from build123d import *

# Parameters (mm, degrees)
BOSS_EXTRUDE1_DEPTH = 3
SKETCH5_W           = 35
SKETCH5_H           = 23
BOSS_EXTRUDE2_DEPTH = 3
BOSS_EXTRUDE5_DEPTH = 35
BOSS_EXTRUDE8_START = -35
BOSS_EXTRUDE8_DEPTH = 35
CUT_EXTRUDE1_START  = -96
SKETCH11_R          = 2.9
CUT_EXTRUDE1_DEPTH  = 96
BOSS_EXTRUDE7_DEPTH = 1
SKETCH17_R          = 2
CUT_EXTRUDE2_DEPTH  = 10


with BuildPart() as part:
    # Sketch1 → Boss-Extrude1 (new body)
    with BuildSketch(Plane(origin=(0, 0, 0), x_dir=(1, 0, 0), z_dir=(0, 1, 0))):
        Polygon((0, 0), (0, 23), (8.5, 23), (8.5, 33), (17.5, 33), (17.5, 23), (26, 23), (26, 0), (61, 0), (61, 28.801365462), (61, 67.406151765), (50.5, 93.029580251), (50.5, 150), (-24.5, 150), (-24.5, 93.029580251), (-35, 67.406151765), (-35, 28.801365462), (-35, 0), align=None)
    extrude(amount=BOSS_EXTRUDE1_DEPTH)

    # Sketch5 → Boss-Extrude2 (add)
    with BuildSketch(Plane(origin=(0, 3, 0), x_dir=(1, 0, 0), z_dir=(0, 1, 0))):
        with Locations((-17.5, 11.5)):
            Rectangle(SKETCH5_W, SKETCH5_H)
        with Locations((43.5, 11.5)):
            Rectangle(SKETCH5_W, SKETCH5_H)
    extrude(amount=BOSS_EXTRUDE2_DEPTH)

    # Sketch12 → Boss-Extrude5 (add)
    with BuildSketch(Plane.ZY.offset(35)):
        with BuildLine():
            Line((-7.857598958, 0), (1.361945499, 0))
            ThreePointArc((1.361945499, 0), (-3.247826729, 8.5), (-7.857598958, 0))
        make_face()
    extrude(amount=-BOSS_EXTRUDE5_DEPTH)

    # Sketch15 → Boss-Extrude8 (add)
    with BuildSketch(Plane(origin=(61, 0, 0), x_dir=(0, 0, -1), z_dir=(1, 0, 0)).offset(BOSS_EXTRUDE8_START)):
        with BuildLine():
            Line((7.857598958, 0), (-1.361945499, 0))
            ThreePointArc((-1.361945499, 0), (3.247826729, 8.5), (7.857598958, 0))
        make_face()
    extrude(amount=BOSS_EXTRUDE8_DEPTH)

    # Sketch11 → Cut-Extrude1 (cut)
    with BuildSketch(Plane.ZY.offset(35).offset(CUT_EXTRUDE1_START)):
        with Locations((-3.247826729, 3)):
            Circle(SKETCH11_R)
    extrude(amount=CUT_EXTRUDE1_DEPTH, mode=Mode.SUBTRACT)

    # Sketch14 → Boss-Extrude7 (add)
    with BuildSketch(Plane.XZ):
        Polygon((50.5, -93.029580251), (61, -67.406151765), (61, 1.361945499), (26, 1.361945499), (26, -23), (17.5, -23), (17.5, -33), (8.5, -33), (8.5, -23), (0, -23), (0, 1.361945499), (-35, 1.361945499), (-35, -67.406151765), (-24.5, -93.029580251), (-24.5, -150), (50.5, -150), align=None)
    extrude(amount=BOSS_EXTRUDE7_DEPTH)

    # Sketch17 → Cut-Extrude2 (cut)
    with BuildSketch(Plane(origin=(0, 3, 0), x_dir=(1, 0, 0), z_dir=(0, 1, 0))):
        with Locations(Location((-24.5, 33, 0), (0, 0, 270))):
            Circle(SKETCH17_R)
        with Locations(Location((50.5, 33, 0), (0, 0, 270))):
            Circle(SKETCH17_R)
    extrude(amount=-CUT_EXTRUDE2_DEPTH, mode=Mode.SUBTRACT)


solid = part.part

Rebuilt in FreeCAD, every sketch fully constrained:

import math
import FreeCAD as App
import Part
import Sketcher

doc = App.newDocument("Part")
body = doc.addObject("PartDesign::Body", "Body")

sketch1 = body.newObject("Sketcher::SketchObject", "Sketch")
sketch1.AttachmentSupport = (doc.getObject("XZ_Plane"), [""])
sketch1.MapMode = "FlatFace"
sketch1.addGeometry([
    Part.LineSegment(App.Vector(0, 0, 0), App.Vector(0, -23, 0)),
    Part.LineSegment(App.Vector(0, -23, 0), App.Vector(8, -23, 0)),
    Part.LineSegment(App.Vector(8, -23, 0), App.Vector(8, -33, 0)),
    Part.LineSegment(App.Vector(8, -33, 0), App.Vector(18, -33, 0)),
    Part.LineSegment(App.Vector(18, -33, 0), App.Vector(18, -23, 0)),
    Part.LineSegment(App.Vector(18, -23, 0), App.Vector(26, -23, 0)),
    Part.LineSegment(App.Vector(26, -23, 0), App.Vector(26, 0, 0)),
    Part.LineSegment(App.Vector(26, 0, 0), App.Vector(61, 0, 0)),
    Part.LineSegment(App.Vector(61, 0, 0), App.Vector(61, -67, 0)),
    Part.LineSegment(App.Vector(61, -67, 0), App.Vector(50, -93, 0)),
    Part.LineSegment(App.Vector(50, -93, 0), App.Vector(50, -150, 0)),
    Part.LineSegment(App.Vector(50, -150, 0), App.Vector(-24, -150, 0)),
    Part.LineSegment(App.Vector(-24, -150, 0), App.Vector(-24, -93, 0)),
    Part.LineSegment(App.Vector(-24, -93, 0), App.Vector(-35, -67, 0)),
    Part.LineSegment(App.Vector(-35, -67, 0), App.Vector(-35, 0, 0)),
    Part.LineSegment(App.Vector(-35, 0, 0), App.Vector(0, 0, 0)),
], False)
sketch1.addConstraint([
    Sketcher.Constraint("Coincident", 0, 2, 1, 1),
    Sketcher.Constraint("Coincident", 1, 2, 2, 1),
    Sketcher.Constraint("Coincident", 2, 2, 3, 1),
    Sketcher.Constraint("Coincident", 3, 2, 4, 1),
    Sketcher.Constraint("Coincident", 4, 2, 5, 1),
    Sketcher.Constraint("Coincident", 5, 2, 6, 1),
    Sketcher.Constraint("Coincident", 6, 2, 7, 1),
    Sketcher.Constraint("Coincident", 7, 2, 8, 1),
    Sketcher.Constraint("Coincident", 8, 2, 9, 1),
    Sketcher.Constraint("Coincident", 9, 2, 10, 1),
    Sketcher.Constraint("Coincident", 10, 2, 11, 1),
    Sketcher.Constraint("Coincident", 11, 2, 12, 1),
    Sketcher.Constraint("Coincident", 12, 2, 13, 1),
    Sketcher.Constraint("Coincident", 13, 2, 14, 1),
    Sketcher.Constraint("Coincident", 14, 2, 15, 1),
    Sketcher.Constraint("Coincident", 15, 2, 0, 1),
    Sketcher.Constraint("Vertical", 0),
    Sketcher.Constraint("Horizontal", 1),
    Sketcher.Constraint("Vertical", 2),
    Sketcher.Constraint("Horizontal", 3),
    Sketcher.Constraint("Vertical", 4),
    Sketcher.Constraint("Horizontal", 5),
    Sketcher.Constraint("Vertical", 6),
    Sketcher.Constraint("Horizontal", 7),
    Sketcher.Constraint("Vertical", 8),
    Sketcher.Constraint("Vertical", 10),
    Sketcher.Constraint("Horizontal", 11),
    Sketcher.Constraint("Vertical", 12),
    Sketcher.Constraint("Vertical", 14),
    Sketcher.Constraint("Horizontal", 15),
    Sketcher.Constraint("Coincident", 15, 2, -1, 1),
    Sketcher.Constraint("PointOnObject", 6, 2, -1),
    Sketcher.Constraint("Horizontal", 1, 2, 4, 2),
    Sketcher.Constraint("Horizontal", 9, 2, 12, 2),
    Sketcher.Constraint("Horizontal", 8, 2, 13, 2),
    Sketcher.Constraint("Equal", 1, 5),
    Sketcher.Constraint("Equal", 7, 15),
    Sketcher.Constraint("Equal", 9, 13),
    Sketcher.Constraint("DistanceX", 3, 1, 3, 2, 9.0),
    Sketcher.Constraint("DistanceX", 7, 1, 7, 2, 35.0),
    Sketcher.Constraint("DistanceX", 11, 2, 11, 1, 75.0),
    Sketcher.Constraint("DistanceY", 0, 2, 0, 1, 23.0),
    Sketcher.Constraint("DistanceY", 2, 2, 2, 1, 10.0),
    Sketcher.Constraint("DistanceX", 1, 1, 1, 2, 8.5),
    Sketcher.Constraint("DistanceY", 10, 2, -1, 1, 150.0),
    Sketcher.Constraint("DistanceY", 8, 2, 8, 1, 67.406152),
    Sketcher.Constraint("DistanceY", 10, 2, 10, 1, 56.97042),
])
pad1 = body.newObject("PartDesign::Pad", "Pad")
pad1.Profile = sketch1
pad1.Length = 3
pad1.Reversed = True

sketch2 = body.newObject("Sketcher::SketchObject", "Sketch001")
sketch2.AttachmentSupport = (doc.getObject("XZ_Plane"), [""])
sketch2.MapMode = "FlatFace"
sketch2.AttachmentOffset = App.Placement(App.Vector(0, 0, -3), App.Rotation())
sketch2.addGeometry([
    Part.LineSegment(App.Vector(-35, -23, 0), App.Vector(-35, 0, 0)),
    Part.LineSegment(App.Vector(-35, 0, 0), App.Vector(0, 0, 0)),
    Part.LineSegment(App.Vector(0, 0, 0), App.Vector(0, -23, 0)),
    Part.LineSegment(App.Vector(0, -23, 0), App.Vector(-35, -23, 0)),
    Part.LineSegment(App.Vector(26, -23, 0), App.Vector(26, 0, 0)),
    Part.LineSegment(App.Vector(26, 0, 0), App.Vector(61, 0, 0)),
    Part.LineSegment(App.Vector(61, 0, 0), App.Vector(61, -23, 0)),
    Part.LineSegment(App.Vector(61, -23, 0), App.Vector(26, -23, 0)),
], False)
sketch2.addConstraint([
    Sketcher.Constraint("Coincident", 0, 2, 1, 1),
    Sketcher.Constraint("Coincident", 1, 2, 2, 1),
    Sketcher.Constraint("Coincident", 2, 2, 3, 1),
    Sketcher.Constraint("Coincident", 3, 2, 0, 1),
    Sketcher.Constraint("Coincident", 4, 2, 5, 1),
    Sketcher.Constraint("Coincident", 5, 2, 6, 1),
    Sketcher.Constraint("Coincident", 6, 2, 7, 1),
    Sketcher.Constraint("Coincident", 7, 2, 4, 1),
    Sketcher.Constraint("Vertical", 0),
    Sketcher.Constraint("Horizontal", 1),
    Sketcher.Constraint("Vertical", 2),
    Sketcher.Constraint("Horizontal", 3),
    Sketcher.Constraint("Vertical", 4),
    Sketcher.Constraint("Horizontal", 5),
    Sketcher.Constraint("Vertical", 6),
    Sketcher.Constraint("Horizontal", 7),
    Sketcher.Constraint("Coincident", 1, 2, -1, 1),
    Sketcher.Constraint("PointOnObject", 4, 2, -1),
    Sketcher.Constraint("Horizontal", 3, 2, 6, 2),
    Sketcher.Constraint("Equal", 3, 5),
    Sketcher.Constraint("DistanceX", 1, 1, 1, 2, 35.0),
    Sketcher.Constraint("DistanceY", 0, 1, 0, 2, 23.0),
    Sketcher.Constraint("DistanceX", -1, 1, 4, 2, 26.0),
])
pad2 = body.newObject("PartDesign::Pad", "Pad001")
pad2.Profile = sketch2
pad2.Length = 3
pad2.Reversed = True

sketch3 = body.newObject("Sketcher::SketchObject", "Sketch002")
sketch3.AttachmentSupport = (doc.getObject("YZ_Plane"), [""])
sketch3.MapMode = "FlatFace"
sketch3.AttachmentOffset = App.Placement(App.Vector(0, 0, -35), App.Rotation())
sketch3.addGeometry([
    Part.LineSegment(App.Vector(0, -8, 0), App.Vector(0, 1, 0)),
    Part.ArcOfCircle(Part.Circle(App.Vector(3, -3, 0), App.Vector(0, 0, 1), 6), math.radians(-123), math.radians(123)),
], False)
sketch3.addConstraint([
    Sketcher.Constraint("Coincident", 0, 1, 1, 1),
    Sketcher.Constraint("Coincident", 1, 2, 0, 2),
    Sketcher.Constraint("Vertical", 0),
    Sketcher.Constraint("PointOnObject", 0, 1, -2),
    Sketcher.Constraint("Radius", 1, 5.5),
    Sketcher.Constraint("DistanceX", -1, 1, 1, 3, 3.0),
    Sketcher.Constraint("DistanceY", 0, 1, -1, 1, 7.857599),
])
pad3 = body.newObject("PartDesign::Pad", "Pad002")
pad3.Profile = sketch3
pad3.Length = 35

sketch4 = body.newObject("Sketcher::SketchObject", "Sketch003")
sketch4.AttachmentSupport = (doc.getObject("YZ_Plane"), [""])
sketch4.MapMode = "FlatFace"
sketch4.AttachmentOffset = App.Placement(App.Vector(0, 0, 26), App.Rotation())
sketch4.addGeometry([
    Part.LineSegment(App.Vector(0, 1, 0), App.Vector(0, -8, 0)),
    Part.ArcOfCircle(Part.Circle(App.Vector(3, -3, 0), App.Vector(0, 0, 1), 6), math.radians(-123), math.radians(123)),
], False)
sketch4.addConstraint([
    Sketcher.Constraint("Coincident", 0, 1, 1, 2),
    Sketcher.Constraint("Coincident", 1, 1, 0, 2),
    Sketcher.Constraint("Vertical", 0),
    Sketcher.Constraint("PointOnObject", 0, 1, -2),
    Sketcher.Constraint("Radius", 1, 5.5),
    Sketcher.Constraint("DistanceX", -1, 1, 1, 3, 3.0),
    Sketcher.Constraint("DistanceY", 1, 1, -1, 1, 7.857599),
])
pad4 = body.newObject("PartDesign::Pad", "Pad003")
pad4.Profile = sketch4
pad4.Length = 35

sketch5 = body.newObject("Sketcher::SketchObject", "Sketch004")
sketch5.AttachmentSupport = (doc.getObject("YZ_Plane"), [""])
sketch5.MapMode = "FlatFace"
sketch5.AttachmentOffset = App.Placement(App.Vector(0, 0, 61), App.Rotation())
sketch5.addGeometry(Part.Circle(App.Vector(3, -3.2, 0), App.Vector(0, 0, 1), 2.9), False)
sketch5.addConstraint([
    Sketcher.Constraint("Diameter", 0, 5.8),
    Sketcher.Constraint("DistanceX", -1, 1, 0, 3, 3.0),
    Sketcher.Constraint("DistanceY", 0, 3, -1, 1, 3.247827),
])
pocket1 = body.newObject("PartDesign::Pocket", "Pocket")
pocket1.Profile = sketch5
pocket1.Length = 96

sketch6 = body.newObject("Sketcher::SketchObject", "Sketch005")
sketch6.AttachmentSupport = (doc.getObject("XZ_Plane"), [""])
sketch6.MapMode = "FlatFace"
sketch6.addGeometry([
    Part.LineSegment(App.Vector(50, -93, 0), App.Vector(61, -67, 0)),
    Part.LineSegment(App.Vector(61, -67, 0), App.Vector(61, 1, 0)),
    Part.LineSegment(App.Vector(61, 1, 0), App.Vector(26, 1, 0)),
    Part.LineSegment(App.Vector(26, 1, 0), App.Vector(26, -23, 0)),
    Part.LineSegment(App.Vector(26, -23, 0), App.Vector(18, -23, 0)),
    Part.LineSegment(App.Vector(18, -23, 0), App.Vector(18, -33, 0)),
    Part.LineSegment(App.Vector(18, -33, 0), App.Vector(8, -33, 0)),
    Part.LineSegment(App.Vector(8, -33, 0), App.Vector(8, -23, 0)),
    Part.LineSegment(App.Vector(8, -23, 0), App.Vector(0, -23, 0)),
    Part.LineSegment(App.Vector(0, -23, 0), App.Vector(0, 1, 0)),
    Part.LineSegment(App.Vector(0, 1, 0), App.Vector(-35, 1, 0)),
    Part.LineSegment(App.Vector(-35, 1, 0), App.Vector(-35, -67, 0)),
    Part.LineSegment(App.Vector(-35, -67, 0), App.Vector(-24, -93, 0)),
    Part.LineSegment(App.Vector(-24, -93, 0), App.Vector(-24, -150, 0)),
    Part.LineSegment(App.Vector(-24, -150, 0), App.Vector(50, -150, 0)),
    Part.LineSegment(App.Vector(50, -150, 0), App.Vector(50, -93, 0)),
], False)
sketch6.addConstraint([
    Sketcher.Constraint("Coincident", 0, 2, 1, 1),
    Sketcher.Constraint("Coincident", 1, 2, 2, 1),
    Sketcher.Constraint("Coincident", 2, 2, 3, 1),
    Sketcher.Constraint("Coincident", 3, 2, 4, 1),
    Sketcher.Constraint("Coincident", 4, 2, 5, 1),
    Sketcher.Constraint("Coincident", 5, 2, 6, 1),
    Sketcher.Constraint("Coincident", 6, 2, 7, 1),
    Sketcher.Constraint("Coincident", 7, 2, 8, 1),
    Sketcher.Constraint("Coincident", 8, 2, 9, 1),
    Sketcher.Constraint("Coincident", 9, 2, 10, 1),
    Sketcher.Constraint("Coincident", 10, 2, 11, 1),
    Sketcher.Constraint("Coincident", 11, 2, 12, 1),
    Sketcher.Constraint("Coincident", 12, 2, 13, 1),
    Sketcher.Constraint("Coincident", 13, 2, 14, 1),
    Sketcher.Constraint("Coincident", 14, 2, 15, 1),
    Sketcher.Constraint("Coincident", 15, 2, 0, 1),
    Sketcher.Constraint("Vertical", 1),
    Sketcher.Constraint("Horizontal", 2),
    Sketcher.Constraint("Vertical", 3),
    Sketcher.Constraint("Horizontal", 4),
    Sketcher.Constraint("Vertical", 5),
    Sketcher.Constraint("Horizontal", 6),
    Sketcher.Constraint("Vertical", 7),
    Sketcher.Constraint("Horizontal", 8),
    Sketcher.Constraint("Vertical", 9),
    Sketcher.Constraint("Horizontal", 10),
    Sketcher.Constraint("Vertical", 11),
    Sketcher.Constraint("Vertical", 13),
    Sketcher.Constraint("Horizontal", 14),
    Sketcher.Constraint("Vertical", 15),
    Sketcher.Constraint("PointOnObject", 8, 2, -2),
    Sketcher.Constraint("Horizontal", 4, 2, 7, 2),
    Sketcher.Constraint("Horizontal", 2, 2, 9, 2),
    Sketcher.Constraint("Horizontal", 0, 2, 11, 2),
    Sketcher.Constraint("Horizontal", 12, 2, 15, 2),
    Sketcher.Constraint("Equal", 4, 8),
    Sketcher.Constraint("Equal", 2, 10),
    Sketcher.Constraint("Equal", 0, 12),
    Sketcher.Constraint("DistanceX", 2, 2, 2, 1, 35.0),
    Sketcher.Constraint("DistanceX", 6, 2, 6, 1, 9.0),
    Sketcher.Constraint("DistanceX", 14, 1, 14, 2, 75.0),
    Sketcher.Constraint("DistanceY", 5, 2, 5, 1, 10.0),
    Sketcher.Constraint("DistanceX", 4, 2, 4, 1, 8.5),
    Sketcher.Constraint("DistanceY", 3, 2, -1, 1, 23.0),
    Sketcher.Constraint("DistanceY", 13, 2, -1, 1, 150.0),
    Sketcher.Constraint("DistanceY", 13, 2, 13, 1, 56.97042),
    Sketcher.Constraint("DistanceY", 1, 1, 1, 2, 68.768097),
    Sketcher.Constraint("DistanceY", 3, 2, 3, 1, 24.361945),
])
pad5 = body.newObject("PartDesign::Pad", "Pad004")
pad5.Profile = sketch6
pad5.Length = 1

sketch7 = body.newObject("Sketcher::SketchObject", "Sketch006")
sketch7.AttachmentSupport = (doc.getObject("XZ_Plane"), [""])
sketch7.MapMode = "FlatFace"
sketch7.AttachmentOffset = App.Placement(App.Vector(0, 0, -3), App.Rotation())
sketch7.addGeometry([
    Part.Circle(App.Vector(-24.5, -33, 0), App.Vector(0, 0, 1), 2),
    Part.Circle(App.Vector(50.5, -33, 0), App.Vector(0, 0, 1), 2),
], False)
sketch7.addConstraint([
    Sketcher.Constraint("Equal", 0, 1),
    Sketcher.Constraint("Horizontal", 0, 3, 1, 3),
    Sketcher.Constraint("Diameter", 0, 4.0),
    Sketcher.Constraint("DistanceY", 0, 3, -1, 1, 33.0),
    Sketcher.Constraint("DistanceX", 0, 3, 1, 3, 75.0),
    Sketcher.Constraint("DistanceX", 0, 3, -1, 1, 24.5),
])
pocket2 = body.newObject("PartDesign::Pocket", "Pocket001")
pocket2.Profile = sketch7
pocket2.Length = 10
pocket2.Reversed = True

doc.recompute()
